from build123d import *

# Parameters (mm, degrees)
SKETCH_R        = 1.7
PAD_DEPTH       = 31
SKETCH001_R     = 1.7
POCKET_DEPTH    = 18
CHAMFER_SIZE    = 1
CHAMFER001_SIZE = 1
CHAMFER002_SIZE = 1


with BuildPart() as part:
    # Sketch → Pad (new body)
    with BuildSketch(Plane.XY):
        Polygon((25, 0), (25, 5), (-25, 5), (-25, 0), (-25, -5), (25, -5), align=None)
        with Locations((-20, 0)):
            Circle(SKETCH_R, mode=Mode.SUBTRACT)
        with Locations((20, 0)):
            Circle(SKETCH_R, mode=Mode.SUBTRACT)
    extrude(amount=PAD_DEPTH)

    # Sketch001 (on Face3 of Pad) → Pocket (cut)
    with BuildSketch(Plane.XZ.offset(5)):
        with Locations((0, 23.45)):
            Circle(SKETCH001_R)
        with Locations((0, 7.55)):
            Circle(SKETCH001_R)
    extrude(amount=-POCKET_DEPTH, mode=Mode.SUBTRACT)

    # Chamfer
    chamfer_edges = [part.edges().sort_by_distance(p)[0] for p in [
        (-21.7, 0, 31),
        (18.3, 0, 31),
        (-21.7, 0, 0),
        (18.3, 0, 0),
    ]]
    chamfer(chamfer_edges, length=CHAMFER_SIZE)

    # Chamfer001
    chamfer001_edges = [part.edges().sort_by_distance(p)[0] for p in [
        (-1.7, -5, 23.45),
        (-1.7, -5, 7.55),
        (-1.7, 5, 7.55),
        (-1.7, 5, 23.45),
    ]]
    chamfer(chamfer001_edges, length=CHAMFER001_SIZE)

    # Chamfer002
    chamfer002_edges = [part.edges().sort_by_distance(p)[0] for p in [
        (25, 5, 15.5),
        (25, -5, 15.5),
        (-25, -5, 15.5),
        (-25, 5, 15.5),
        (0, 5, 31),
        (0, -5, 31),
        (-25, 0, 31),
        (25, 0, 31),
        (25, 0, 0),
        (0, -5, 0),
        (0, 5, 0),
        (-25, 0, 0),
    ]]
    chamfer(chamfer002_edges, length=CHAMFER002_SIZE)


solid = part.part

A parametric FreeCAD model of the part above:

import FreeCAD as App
import Part
import Sketcher
from FreeCAD import Vector


def edges_at(feature, points):
    """Names of the edges that pass closest to the given points."""
    edges = feature.Shape.Edges
    near = lambda p: min(range(len(edges)), key=lambda i: edges[i].distToShape(Part.Vertex(*p))[0])
    return sorted({f"Edge{near(p) + 1}" for p in points})


def add_polygon(sketch, points):
    """Adds a closed chain of lines whose ends are joined by coincident constraints."""
    first, n = sketch.GeometryCount, len(points)
    for a, b in zip(points, points[1:] + points[:1]):
        sketch.addGeometry(Part.LineSegment(App.Vector(*a, 0), App.Vector(*b, 0)), False)
    for i in range(n):
        sketch.addConstraint(Sketcher.Constraint("Coincident", first + i, 2, first + (i + 1) % n, 1))

doc = App.newDocument("Part")
params = doc.addObject("Spreadsheet::Sheet", "Params")
for row, (alias, value) in enumerate([
    ("sketch1_diameter", "3.4 mm"),
    ("sketch1_width", "50 mm"),
    ("sketch1_height", "10 mm"),
    ("pad1_length", "31 mm"),
    ("sketch2_diameter", "3.4 mm"),
    ("pocket1_length", "18 mm"),
    ("chamfer_size", "1 mm"),
    ("chamfer2_size", "1 mm"),
    ("chamfer3_size", "1 mm"),
], start=1):
    params.set(f"A{row}", alias)
    params.set(f"B{row}", "=" + value)
    params.setAlias(f"B{row}", alias)

body = doc.addObject("PartDesign::Body", "Body")

sketch1 = doc.addObject("Sketcher::SketchObject", "Sketch")
body.addObject(sketch1)
sketch1.AttachmentSupport = (doc.XY_Plane, [""])
sketch1.MapMode = "FlatFace"
add_polygon(sketch1, [(25, 5), (-25, 5), (-25, -5), (25, -5)])
sketch1.addGeometry(Part.Circle(Vector(-20, 0, 0), Vector(0, 0, 1), 1.7), False)
sketch1.addGeometry(Part.Circle(Vector(20, 0, 0), Vector(0, 0, 1), 1.7), False)
sketch1.addConstraint([
    Sketcher.Constraint("Horizontal", 0),
    Sketcher.Constraint("Vertical", 1),
    Sketcher.Constraint("Horizontal", 2),
    Sketcher.Constraint("Vertical", 3),
    Sketcher.Constraint("Equal", 4, 5),
    Sketcher.Constraint("Symmetric", 4, 3, 5, 3, -1, 1),
    Sketcher.Constraint("Symmetric", 0, 2, 2, 2, -1, 1),
    Sketcher.Constraint("PointOnObject", 4, 3, -1),
    Sketcher.Constraint("Diameter", 4, 3.4),
    Sketcher.Constraint("DistanceX", 0, 2, 0, 1, 50.0),
    Sketcher.Constraint("DistanceY", 1, 2, 1, 1, 10.0),
    Sketcher.Constraint("DistanceX", 4, 3, -1, 1, 20.0),
])
sketch1.setExpression("Constraints[12]", "Params.sketch1_diameter")
sketch1.setExpression("Constraints[13]", "Params.sketch1_width")
sketch1.setExpression("Constraints[14]", "Params.sketch1_height")
pad1 = doc.addObject("PartDesign::Pad", "Pad")
body.addObject(pad1)
pad1.Profile = sketch1
pad1.setExpression("Length", "Params.pad1_length")

sketch2 = doc.addObject("Sketcher::SketchObject", "Sketch001")
body.addObject(sketch2)
sketch2.AttachmentSupport = (doc.XZ_Plane, [""])
sketch2.MapMode = "FlatFace"
sketch2.AttachmentOffset = App.Placement(Vector(0, 0, 5), App.Rotation())
sketch2.addGeometry([
    Part.Circle(Vector(0, 23.4, 0), Vector(0, 0, 1), 1.7),
    Part.Circle(Vector(0, 7.5, 0), Vector(0, 0, 1), 1.7),
], False)
sketch2.addConstraint([
    Sketcher.Constraint("Equal", 0, 1),
    Sketcher.Constraint("PointOnObject", 0, 3, -2),
    Sketcher.Constraint("PointOnObject", 1, 3, -2),
    Sketcher.Constraint("Diameter", 0, 3.4),
    Sketcher.Constraint("DistanceY", 1, 3, 0, 3, 15.9),
    Sketcher.Constraint("DistanceY", -1, 1, 0, 3, 23.45),
])
sketch2.setExpression("Constraints[3]", "Params.sketch2_diameter")
pocket1 = doc.addObject("PartDesign::Pocket", "Pocket")
body.addObject(pocket1)
pocket1.Profile = sketch2
pocket1.setExpression("Length", "Params.pocket1_length")
doc.recompute()

chamfer = doc.addObject("PartDesign::Chamfer", "Chamfer")
body.addObject(chamfer)
chamfer.Base = (pocket1, edges_at(pocket1, [
    (-21.7, 0, 31),
    (18.3, 0, 31),
    (-21.7, 0, 0),
    (18.3, 0, 0),
]))
chamfer.setExpression("Size", "Params.chamfer_size")
doc.recompute()

chamfer2 = doc.addObject("PartDesign::Chamfer", "Chamfer001")
body.addObject(chamfer2)
chamfer2.Base = (chamfer, edges_at(chamfer, [
    (-1.7, -5, 23.45),
    (-1.7, -5, 7.55),
    (-1.7, 5, 7.55),
    (-1.7, 5, 23.45),
]))
chamfer2.setExpression("Size", "Params.chamfer2_size")
doc.recompute()

chamfer3 = doc.addObject("PartDesign::Chamfer", "Chamfer002")
body.addObject(chamfer3)
chamfer3.Base = (chamfer2, edges_at(chamfer2, [
    (25, 5, 15.5),
    (25, -5, 15.5),
    (-25, -5, 15.5),
    (-25, 5, 15.5),
    (0, 5, 31),
    (0, -5, 31),
    (-25, 0, 31),
    (25, 0, 31),
    (25, 0, 0),
    (0, -5, 0),
    (0, 5, 0),
    (-25, 0, 0),
]))
chamfer3.setExpression("Size", "Params.chamfer3_size")

doc.recompute()
